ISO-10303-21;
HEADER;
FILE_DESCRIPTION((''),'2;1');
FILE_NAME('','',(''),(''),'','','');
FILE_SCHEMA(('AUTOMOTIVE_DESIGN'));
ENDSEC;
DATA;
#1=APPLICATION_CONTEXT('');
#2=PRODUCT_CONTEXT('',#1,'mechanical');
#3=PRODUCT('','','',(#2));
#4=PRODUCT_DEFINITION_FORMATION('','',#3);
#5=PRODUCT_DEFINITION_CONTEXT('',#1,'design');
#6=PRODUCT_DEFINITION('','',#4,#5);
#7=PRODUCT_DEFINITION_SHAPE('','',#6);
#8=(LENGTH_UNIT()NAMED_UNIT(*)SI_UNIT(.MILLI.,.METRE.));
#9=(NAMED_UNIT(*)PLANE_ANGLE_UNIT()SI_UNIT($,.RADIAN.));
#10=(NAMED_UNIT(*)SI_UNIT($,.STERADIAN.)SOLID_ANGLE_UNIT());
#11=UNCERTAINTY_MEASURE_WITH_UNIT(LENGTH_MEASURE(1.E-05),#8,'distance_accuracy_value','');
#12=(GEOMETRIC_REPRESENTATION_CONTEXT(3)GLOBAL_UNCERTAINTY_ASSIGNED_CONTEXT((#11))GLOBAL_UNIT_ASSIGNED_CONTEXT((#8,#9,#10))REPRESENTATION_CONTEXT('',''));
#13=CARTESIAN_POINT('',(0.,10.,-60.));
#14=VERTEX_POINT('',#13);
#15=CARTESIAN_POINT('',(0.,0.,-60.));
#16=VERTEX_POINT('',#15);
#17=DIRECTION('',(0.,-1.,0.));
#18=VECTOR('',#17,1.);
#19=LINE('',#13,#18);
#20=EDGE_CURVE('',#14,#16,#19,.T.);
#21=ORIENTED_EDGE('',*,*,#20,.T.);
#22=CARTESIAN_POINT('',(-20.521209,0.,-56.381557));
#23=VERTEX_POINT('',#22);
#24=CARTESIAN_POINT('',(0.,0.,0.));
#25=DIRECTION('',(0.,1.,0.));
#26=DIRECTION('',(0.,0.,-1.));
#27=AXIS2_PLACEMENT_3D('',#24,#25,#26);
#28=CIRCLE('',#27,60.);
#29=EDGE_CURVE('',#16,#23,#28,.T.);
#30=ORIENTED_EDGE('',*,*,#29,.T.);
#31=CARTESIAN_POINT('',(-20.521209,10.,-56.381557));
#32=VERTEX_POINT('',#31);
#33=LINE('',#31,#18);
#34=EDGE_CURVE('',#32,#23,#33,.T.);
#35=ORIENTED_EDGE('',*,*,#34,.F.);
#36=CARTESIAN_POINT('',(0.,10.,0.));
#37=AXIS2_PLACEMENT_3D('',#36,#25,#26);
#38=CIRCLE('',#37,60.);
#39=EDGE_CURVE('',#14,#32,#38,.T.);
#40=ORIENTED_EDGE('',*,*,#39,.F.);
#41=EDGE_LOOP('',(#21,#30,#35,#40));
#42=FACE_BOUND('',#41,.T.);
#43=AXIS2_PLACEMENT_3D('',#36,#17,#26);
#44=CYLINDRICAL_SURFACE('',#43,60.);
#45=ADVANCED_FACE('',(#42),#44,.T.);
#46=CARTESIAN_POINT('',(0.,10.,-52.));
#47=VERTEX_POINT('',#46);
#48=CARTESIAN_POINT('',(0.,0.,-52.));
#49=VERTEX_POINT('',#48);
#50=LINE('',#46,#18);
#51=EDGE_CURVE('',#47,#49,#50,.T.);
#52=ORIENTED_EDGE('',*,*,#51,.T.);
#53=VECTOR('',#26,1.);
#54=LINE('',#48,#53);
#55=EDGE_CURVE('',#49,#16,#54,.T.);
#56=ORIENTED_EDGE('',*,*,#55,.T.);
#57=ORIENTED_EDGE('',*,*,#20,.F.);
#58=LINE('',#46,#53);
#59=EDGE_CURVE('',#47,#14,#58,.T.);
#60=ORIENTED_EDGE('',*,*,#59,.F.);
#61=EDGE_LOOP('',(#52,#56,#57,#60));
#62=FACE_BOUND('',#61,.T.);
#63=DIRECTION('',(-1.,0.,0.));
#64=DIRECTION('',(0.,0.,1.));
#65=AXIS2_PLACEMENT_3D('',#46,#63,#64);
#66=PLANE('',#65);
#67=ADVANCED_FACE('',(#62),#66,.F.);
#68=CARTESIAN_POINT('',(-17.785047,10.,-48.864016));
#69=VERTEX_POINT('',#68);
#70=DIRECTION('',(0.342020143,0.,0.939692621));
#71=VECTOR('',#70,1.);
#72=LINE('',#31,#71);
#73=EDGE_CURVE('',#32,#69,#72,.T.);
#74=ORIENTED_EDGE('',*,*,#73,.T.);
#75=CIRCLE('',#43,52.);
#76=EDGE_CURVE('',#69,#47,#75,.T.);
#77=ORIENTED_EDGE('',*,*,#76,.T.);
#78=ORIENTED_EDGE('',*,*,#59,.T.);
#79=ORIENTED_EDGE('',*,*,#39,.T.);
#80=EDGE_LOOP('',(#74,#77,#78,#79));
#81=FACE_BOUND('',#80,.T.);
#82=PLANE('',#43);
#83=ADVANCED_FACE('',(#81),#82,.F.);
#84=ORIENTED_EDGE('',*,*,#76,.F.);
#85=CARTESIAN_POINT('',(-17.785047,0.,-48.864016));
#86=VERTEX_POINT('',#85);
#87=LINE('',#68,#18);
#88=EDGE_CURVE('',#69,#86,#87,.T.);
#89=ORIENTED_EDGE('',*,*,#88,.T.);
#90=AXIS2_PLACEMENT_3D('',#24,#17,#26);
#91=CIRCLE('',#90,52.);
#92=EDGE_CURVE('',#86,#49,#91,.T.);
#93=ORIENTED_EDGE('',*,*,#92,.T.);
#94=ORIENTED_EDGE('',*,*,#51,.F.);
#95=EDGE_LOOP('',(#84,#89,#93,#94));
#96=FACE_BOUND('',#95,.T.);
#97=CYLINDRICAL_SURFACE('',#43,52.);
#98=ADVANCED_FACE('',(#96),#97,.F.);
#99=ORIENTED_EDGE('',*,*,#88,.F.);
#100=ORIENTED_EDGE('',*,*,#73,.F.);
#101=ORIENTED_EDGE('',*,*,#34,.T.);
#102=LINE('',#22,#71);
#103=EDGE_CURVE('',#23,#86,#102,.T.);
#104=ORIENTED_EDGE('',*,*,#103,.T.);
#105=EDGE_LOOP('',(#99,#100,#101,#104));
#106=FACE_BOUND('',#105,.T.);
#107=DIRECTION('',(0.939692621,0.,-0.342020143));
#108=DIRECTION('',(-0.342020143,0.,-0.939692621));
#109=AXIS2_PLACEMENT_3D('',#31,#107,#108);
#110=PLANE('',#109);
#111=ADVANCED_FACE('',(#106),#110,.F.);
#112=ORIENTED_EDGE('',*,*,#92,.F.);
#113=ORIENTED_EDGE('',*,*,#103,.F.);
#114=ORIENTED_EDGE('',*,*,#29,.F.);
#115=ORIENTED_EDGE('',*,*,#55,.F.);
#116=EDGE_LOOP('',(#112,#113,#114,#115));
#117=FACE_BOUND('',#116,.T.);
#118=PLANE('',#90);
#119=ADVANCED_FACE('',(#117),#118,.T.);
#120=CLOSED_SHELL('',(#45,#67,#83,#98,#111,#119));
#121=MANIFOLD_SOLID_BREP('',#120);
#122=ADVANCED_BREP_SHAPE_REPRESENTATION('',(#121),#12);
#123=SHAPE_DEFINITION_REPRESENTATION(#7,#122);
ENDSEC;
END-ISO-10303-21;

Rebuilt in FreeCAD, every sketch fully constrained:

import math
import FreeCAD as App
import Part
import Sketcher
from FreeCAD import Vector
Q = App.Units.Quantity

doc = App.newDocument("Part")
body = doc.addObject("PartDesign::Body", "Body")

sketch1 = body.newObject("Sketcher::SketchObject", "Sketch")
sketch1.AttachmentSupport = (doc.getObject("XZ_Plane"), [""])
sketch1.MapMode = "FlatFace"
sketch1.addGeometry([
    Part.LineSegment(Vector(-21, -56, 0), Vector(-18, -49, 0)),
    Part.ArcOfCircle(Part.Circle(Vector(0, 0, 0), Vector(0, 0, 1), 52), math.radians(-110), math.radians(-90)),
    Part.LineSegment(Vector(0, -52, 0), Vector(0, -60, 0)),
    Part.ArcOfCircle(Part.Circle(Vector(0, 0, 0), Vector(0, 0, 1), 60), math.radians(-110), math.radians(-90)),
], False)
sketch1.addConstraint([
    Sketcher.Constraint("Coincident", 0, 2, 1, 1),
    Sketcher.Constraint("Coincident", 1, 2, 2, 1),
    Sketcher.Constraint("Coincident", 2, 2, 3, 2),
    Sketcher.Constraint("Coincident", 3, 1, 0, 1),
    Sketcher.Constraint("Vertical", 2),
    Sketcher.Constraint("Coincident", 1, 3, -1, 1),
    Sketcher.Constraint("Coincident", 3, 3, -1, 1),
    Sketcher.Constraint("PointOnObject", 1, 2, -2),
    Sketcher.Constraint("Radius", 1, Q("52 mm")),
    Sketcher.Constraint("Radius", 3, Q("60 mm")),
    Sketcher.Constraint("Angle", 0, Q("70 deg")),
    Sketcher.Constraint("DistanceX", 3, 1, -1, 1, Q("20.521209 mm")),
])
pad1 = body.newObject("PartDesign::Pad", "Pad")
pad1.Profile = sketch1
pad1.Length = 10
pad1.Reversed = True

doc.recompute()
